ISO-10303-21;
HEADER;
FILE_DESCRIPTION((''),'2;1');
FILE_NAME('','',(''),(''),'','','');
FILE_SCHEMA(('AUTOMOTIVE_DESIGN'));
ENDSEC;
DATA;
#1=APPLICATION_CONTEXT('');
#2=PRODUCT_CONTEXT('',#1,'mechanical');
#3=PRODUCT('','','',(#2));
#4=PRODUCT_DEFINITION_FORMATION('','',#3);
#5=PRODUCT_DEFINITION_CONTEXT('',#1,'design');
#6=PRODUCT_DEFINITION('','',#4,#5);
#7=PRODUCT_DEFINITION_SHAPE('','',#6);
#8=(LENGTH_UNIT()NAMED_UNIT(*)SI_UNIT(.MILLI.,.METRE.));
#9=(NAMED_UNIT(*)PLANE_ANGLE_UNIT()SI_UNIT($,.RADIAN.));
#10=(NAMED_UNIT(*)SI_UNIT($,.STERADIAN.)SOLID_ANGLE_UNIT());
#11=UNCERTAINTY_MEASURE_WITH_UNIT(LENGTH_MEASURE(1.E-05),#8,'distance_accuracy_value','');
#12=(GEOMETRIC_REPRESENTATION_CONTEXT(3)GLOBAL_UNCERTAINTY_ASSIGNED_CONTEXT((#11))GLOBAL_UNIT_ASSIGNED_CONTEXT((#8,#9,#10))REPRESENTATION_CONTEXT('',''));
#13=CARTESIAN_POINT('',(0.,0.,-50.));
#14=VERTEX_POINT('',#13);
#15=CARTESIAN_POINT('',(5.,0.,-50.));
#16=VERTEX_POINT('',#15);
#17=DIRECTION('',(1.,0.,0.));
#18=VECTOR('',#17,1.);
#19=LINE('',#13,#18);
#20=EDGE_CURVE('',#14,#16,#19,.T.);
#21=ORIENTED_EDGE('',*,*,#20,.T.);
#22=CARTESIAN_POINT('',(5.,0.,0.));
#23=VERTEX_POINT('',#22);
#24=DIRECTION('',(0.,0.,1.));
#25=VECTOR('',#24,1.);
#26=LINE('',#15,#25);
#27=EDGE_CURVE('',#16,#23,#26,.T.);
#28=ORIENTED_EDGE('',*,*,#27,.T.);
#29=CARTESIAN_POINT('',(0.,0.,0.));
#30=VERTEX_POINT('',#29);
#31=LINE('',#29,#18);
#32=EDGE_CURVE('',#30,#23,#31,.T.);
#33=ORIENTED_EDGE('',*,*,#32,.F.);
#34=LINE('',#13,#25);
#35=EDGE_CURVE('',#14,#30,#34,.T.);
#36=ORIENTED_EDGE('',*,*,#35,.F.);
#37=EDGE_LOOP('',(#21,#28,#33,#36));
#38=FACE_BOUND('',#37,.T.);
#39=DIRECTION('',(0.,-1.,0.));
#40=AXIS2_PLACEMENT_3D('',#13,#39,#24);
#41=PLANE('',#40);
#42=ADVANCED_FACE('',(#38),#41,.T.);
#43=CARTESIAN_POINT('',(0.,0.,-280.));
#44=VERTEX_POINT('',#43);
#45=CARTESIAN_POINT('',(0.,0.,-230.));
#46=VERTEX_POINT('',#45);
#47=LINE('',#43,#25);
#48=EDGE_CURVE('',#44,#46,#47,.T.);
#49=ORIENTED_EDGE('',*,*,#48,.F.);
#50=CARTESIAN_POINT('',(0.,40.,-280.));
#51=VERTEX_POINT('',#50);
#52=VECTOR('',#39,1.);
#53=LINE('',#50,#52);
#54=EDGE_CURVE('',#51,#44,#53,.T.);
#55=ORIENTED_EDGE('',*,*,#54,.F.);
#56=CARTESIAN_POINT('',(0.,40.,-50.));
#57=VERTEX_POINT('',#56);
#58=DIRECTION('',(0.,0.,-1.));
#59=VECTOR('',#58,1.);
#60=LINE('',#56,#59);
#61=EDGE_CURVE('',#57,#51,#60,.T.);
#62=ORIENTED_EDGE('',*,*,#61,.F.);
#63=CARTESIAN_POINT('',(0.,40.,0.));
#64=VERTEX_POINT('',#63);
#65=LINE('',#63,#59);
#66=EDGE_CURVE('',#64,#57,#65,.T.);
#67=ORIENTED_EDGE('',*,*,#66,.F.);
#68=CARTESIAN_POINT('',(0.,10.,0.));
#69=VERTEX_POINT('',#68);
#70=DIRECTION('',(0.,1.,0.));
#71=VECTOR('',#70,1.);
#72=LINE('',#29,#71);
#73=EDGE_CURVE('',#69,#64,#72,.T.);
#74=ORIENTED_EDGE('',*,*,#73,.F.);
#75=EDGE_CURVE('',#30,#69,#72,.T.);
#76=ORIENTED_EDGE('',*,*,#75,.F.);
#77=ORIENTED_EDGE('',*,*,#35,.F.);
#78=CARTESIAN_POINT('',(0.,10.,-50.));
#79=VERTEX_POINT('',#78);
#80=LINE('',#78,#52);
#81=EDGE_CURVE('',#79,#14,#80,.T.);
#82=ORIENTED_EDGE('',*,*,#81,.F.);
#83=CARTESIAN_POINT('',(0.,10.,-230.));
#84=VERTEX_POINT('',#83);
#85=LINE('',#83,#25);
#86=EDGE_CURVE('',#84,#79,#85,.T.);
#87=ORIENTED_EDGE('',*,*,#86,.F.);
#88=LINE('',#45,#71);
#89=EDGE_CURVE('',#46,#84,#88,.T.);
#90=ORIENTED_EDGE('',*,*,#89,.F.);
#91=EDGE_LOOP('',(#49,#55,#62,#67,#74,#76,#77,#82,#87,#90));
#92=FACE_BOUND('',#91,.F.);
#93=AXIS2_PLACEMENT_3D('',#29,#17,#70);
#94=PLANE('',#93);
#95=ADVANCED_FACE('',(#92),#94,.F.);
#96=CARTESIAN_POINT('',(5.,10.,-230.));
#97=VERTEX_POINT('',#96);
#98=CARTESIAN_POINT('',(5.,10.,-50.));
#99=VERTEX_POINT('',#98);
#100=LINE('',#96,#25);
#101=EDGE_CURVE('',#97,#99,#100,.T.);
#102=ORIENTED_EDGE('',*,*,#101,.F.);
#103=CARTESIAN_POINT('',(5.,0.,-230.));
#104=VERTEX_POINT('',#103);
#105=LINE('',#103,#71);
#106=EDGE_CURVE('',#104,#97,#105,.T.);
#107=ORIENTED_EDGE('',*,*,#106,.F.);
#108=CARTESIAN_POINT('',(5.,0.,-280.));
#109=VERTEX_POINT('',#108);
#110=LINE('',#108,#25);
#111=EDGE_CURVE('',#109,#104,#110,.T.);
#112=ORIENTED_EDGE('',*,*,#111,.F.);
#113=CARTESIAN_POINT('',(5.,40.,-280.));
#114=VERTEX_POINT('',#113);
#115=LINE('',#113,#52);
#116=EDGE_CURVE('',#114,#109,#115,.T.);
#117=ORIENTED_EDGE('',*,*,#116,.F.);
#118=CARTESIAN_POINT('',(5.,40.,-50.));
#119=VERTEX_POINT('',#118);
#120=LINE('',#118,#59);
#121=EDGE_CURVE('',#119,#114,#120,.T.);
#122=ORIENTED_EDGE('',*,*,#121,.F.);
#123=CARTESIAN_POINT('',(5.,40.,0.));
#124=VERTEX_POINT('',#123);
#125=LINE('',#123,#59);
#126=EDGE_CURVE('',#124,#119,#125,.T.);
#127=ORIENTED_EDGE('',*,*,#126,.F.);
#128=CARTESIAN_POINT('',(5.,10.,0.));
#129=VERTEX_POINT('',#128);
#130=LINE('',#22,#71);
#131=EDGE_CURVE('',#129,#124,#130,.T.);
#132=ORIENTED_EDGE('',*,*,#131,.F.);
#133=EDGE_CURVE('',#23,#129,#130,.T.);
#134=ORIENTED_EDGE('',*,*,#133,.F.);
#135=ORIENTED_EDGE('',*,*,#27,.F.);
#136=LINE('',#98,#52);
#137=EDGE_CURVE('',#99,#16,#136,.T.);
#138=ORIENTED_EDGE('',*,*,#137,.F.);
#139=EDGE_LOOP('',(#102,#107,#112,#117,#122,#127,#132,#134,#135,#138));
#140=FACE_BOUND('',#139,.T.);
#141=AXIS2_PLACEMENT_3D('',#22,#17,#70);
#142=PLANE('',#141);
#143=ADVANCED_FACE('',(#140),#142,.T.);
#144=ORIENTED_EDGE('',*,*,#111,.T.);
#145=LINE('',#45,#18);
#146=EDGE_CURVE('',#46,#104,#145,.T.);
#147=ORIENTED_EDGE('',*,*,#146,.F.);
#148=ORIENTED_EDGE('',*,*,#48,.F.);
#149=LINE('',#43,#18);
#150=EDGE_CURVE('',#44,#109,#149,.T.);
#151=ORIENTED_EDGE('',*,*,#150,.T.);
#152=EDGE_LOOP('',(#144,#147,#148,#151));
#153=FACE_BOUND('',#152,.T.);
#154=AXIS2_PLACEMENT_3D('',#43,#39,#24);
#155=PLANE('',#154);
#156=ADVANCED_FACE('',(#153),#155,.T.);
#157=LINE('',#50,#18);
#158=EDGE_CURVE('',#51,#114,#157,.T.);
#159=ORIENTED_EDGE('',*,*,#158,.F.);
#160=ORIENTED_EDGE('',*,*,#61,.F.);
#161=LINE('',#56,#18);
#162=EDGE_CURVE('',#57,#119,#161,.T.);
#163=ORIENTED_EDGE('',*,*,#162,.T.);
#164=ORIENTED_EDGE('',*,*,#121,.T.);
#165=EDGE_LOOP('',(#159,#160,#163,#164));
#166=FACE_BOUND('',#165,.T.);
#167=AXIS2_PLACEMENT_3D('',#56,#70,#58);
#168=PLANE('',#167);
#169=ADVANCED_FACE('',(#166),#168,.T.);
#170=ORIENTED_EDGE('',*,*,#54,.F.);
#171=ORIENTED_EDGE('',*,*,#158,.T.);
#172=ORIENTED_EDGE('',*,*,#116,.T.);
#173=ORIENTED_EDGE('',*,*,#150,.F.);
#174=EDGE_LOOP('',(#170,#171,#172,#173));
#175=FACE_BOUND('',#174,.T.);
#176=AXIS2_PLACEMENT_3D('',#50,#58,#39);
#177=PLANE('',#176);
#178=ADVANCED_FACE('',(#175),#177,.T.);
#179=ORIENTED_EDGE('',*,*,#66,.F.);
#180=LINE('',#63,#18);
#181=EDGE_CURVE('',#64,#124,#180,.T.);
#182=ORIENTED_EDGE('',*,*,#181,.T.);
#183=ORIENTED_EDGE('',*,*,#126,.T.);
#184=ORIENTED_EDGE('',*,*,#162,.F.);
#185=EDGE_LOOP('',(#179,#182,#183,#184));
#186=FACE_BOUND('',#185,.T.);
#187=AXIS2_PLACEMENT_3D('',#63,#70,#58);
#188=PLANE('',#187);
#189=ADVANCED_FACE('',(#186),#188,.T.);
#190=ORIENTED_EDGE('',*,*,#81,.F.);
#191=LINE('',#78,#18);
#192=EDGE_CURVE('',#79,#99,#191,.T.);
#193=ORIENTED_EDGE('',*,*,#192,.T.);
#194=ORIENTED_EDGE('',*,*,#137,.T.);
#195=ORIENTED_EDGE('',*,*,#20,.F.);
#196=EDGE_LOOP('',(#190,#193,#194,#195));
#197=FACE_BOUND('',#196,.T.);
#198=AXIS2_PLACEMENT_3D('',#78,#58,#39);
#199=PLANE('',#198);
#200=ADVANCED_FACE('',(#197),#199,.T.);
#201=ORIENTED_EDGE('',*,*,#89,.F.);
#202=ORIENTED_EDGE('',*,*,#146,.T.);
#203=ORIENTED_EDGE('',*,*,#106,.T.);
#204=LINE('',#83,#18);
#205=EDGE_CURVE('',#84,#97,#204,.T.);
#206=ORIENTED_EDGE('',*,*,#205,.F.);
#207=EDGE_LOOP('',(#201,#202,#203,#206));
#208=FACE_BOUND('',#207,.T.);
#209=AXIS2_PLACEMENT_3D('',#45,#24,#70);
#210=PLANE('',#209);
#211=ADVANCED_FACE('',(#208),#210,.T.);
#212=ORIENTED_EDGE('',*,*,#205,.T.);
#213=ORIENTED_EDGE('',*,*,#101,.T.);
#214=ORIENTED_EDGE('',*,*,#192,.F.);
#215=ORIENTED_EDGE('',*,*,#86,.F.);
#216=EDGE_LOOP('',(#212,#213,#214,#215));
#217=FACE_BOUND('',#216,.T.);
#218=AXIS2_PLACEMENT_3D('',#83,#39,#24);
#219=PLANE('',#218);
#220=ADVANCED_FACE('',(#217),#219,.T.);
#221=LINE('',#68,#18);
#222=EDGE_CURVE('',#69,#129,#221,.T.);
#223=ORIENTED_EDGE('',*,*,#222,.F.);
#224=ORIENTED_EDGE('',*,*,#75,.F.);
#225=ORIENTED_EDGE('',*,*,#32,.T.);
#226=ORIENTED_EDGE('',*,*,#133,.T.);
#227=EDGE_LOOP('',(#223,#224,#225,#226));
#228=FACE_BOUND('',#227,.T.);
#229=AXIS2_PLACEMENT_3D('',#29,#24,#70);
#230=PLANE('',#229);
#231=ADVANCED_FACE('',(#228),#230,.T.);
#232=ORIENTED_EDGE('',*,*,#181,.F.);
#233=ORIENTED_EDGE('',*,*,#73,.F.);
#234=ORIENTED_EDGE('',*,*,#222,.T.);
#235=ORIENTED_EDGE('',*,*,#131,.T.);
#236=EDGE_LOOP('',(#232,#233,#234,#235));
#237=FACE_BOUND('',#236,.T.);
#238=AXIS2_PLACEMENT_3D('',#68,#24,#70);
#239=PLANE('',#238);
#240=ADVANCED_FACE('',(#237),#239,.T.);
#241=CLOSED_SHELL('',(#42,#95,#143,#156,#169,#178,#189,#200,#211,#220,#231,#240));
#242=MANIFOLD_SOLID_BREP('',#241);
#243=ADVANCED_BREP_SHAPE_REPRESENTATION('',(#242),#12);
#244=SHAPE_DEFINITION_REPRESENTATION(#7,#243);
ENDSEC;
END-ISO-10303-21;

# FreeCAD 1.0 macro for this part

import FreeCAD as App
import Part
import Sketcher

doc = App.newDocument("Part")
body = doc.addObject("PartDesign::Body", "Body")

sketch1 = body.newObject("Sketcher::SketchObject", "Sketch")
sketch1.AttachmentSupport = (doc.getObject("YZ_Plane"), [""])
sketch1.MapMode = "FlatFace"
sketch1.addGeometry(Part.LineSegment(App.Vector(40, 0, 0), App.Vector(0, 0, 0)), False)
sketch1.addGeometry(Part.LineSegment(App.Vector(0, 0, 0), App.Vector(0, -50, 0)), False)
sketch1.addGeometry(Part.LineSegment(App.Vector(0, -50, 0), App.Vector(10, -50, 0)), False)
sketch1.addGeometry(Part.LineSegment(App.Vector(10, -50, 0), App.Vector(10, -230, 0)), False)
sketch1.addGeometry(Part.LineSegment(App.Vector(10, -230, 0), App.Vector(0, -230, 0)), False)
sketch1.addGeometry(Part.LineSegment(App.Vector(0, -230, 0), App.Vector(0, -280, 0)), False)
sketch1.addGeometry(Part.LineSegment(App.Vector(0, -280, 0), App.Vector(40, -280, 0)), False)
sketch1.addGeometry(Part.LineSegment(App.Vector(40, -280, 0), App.Vector(40, 0, 0)), False)
sketch1.addConstraint(Sketcher.Constraint("Coincident", 0, 2, 1, 1))
sketch1.addConstraint(Sketcher.Constraint("Coincident", 1, 2, 2, 1))
sketch1.addConstraint(Sketcher.Constraint("Coincident", 2, 2, 3, 1))
sketch1.addConstraint(Sketcher.Constraint("Coincident", 3, 2, 4, 1))
sketch1.addConstraint(Sketcher.Constraint("Coincident", 4, 2, 5, 1))
sketch1.addConstraint(Sketcher.Constraint("Coincident", 5, 2, 6, 1))
sketch1.addConstraint(Sketcher.Constraint("Coincident", 6, 2, 7, 1))
sketch1.addConstraint(Sketcher.Constraint("Coincident", 7, 2, 0, 1))
sketch1.addConstraint(Sketcher.Constraint("Horizontal", 0))
sketch1.addConstraint(Sketcher.Constraint("Vertical", 1))
sketch1.addConstraint(Sketcher.Constraint("Horizontal", 2))
sketch1.addConstraint(Sketcher.Constraint("Vertical", 3))
sketch1.addConstraint(Sketcher.Constraint("Horizontal", 4))
sketch1.addConstraint(Sketcher.Constraint("Vertical", 5))
sketch1.addConstraint(Sketcher.Constraint("Horizontal", 6))
sketch1.addConstraint(Sketcher.Constraint("Vertical", 7))
sketch1.addConstraint(Sketcher.Constraint("Coincident", 0, 2, -1, 1))
sketch1.addConstraint(Sketcher.Constraint("PointOnObject", 4, 2, -2))
sketch1.addConstraint(Sketcher.Constraint("Equal", 1, 5))
sketch1.addConstraint(Sketcher.Constraint("DistanceX", 0, 2, 0, 1, 40.0))
sketch1.addConstraint(Sketcher.Constraint("DistanceX", 2, 1, 2, 2, 10.0))
sketch1.addConstraint(Sketcher.Constraint("DistanceY", 1, 2, 1, 1, 50.0))
sketch1.addConstraint(Sketcher.Constraint("DistanceY", 3, 2, -1, 1, 230.0))
pad1 = body.newObject("PartDesign::Pad", "Pad")
pad1.Profile = sketch1
pad1.Length = 5

doc.recompute()
